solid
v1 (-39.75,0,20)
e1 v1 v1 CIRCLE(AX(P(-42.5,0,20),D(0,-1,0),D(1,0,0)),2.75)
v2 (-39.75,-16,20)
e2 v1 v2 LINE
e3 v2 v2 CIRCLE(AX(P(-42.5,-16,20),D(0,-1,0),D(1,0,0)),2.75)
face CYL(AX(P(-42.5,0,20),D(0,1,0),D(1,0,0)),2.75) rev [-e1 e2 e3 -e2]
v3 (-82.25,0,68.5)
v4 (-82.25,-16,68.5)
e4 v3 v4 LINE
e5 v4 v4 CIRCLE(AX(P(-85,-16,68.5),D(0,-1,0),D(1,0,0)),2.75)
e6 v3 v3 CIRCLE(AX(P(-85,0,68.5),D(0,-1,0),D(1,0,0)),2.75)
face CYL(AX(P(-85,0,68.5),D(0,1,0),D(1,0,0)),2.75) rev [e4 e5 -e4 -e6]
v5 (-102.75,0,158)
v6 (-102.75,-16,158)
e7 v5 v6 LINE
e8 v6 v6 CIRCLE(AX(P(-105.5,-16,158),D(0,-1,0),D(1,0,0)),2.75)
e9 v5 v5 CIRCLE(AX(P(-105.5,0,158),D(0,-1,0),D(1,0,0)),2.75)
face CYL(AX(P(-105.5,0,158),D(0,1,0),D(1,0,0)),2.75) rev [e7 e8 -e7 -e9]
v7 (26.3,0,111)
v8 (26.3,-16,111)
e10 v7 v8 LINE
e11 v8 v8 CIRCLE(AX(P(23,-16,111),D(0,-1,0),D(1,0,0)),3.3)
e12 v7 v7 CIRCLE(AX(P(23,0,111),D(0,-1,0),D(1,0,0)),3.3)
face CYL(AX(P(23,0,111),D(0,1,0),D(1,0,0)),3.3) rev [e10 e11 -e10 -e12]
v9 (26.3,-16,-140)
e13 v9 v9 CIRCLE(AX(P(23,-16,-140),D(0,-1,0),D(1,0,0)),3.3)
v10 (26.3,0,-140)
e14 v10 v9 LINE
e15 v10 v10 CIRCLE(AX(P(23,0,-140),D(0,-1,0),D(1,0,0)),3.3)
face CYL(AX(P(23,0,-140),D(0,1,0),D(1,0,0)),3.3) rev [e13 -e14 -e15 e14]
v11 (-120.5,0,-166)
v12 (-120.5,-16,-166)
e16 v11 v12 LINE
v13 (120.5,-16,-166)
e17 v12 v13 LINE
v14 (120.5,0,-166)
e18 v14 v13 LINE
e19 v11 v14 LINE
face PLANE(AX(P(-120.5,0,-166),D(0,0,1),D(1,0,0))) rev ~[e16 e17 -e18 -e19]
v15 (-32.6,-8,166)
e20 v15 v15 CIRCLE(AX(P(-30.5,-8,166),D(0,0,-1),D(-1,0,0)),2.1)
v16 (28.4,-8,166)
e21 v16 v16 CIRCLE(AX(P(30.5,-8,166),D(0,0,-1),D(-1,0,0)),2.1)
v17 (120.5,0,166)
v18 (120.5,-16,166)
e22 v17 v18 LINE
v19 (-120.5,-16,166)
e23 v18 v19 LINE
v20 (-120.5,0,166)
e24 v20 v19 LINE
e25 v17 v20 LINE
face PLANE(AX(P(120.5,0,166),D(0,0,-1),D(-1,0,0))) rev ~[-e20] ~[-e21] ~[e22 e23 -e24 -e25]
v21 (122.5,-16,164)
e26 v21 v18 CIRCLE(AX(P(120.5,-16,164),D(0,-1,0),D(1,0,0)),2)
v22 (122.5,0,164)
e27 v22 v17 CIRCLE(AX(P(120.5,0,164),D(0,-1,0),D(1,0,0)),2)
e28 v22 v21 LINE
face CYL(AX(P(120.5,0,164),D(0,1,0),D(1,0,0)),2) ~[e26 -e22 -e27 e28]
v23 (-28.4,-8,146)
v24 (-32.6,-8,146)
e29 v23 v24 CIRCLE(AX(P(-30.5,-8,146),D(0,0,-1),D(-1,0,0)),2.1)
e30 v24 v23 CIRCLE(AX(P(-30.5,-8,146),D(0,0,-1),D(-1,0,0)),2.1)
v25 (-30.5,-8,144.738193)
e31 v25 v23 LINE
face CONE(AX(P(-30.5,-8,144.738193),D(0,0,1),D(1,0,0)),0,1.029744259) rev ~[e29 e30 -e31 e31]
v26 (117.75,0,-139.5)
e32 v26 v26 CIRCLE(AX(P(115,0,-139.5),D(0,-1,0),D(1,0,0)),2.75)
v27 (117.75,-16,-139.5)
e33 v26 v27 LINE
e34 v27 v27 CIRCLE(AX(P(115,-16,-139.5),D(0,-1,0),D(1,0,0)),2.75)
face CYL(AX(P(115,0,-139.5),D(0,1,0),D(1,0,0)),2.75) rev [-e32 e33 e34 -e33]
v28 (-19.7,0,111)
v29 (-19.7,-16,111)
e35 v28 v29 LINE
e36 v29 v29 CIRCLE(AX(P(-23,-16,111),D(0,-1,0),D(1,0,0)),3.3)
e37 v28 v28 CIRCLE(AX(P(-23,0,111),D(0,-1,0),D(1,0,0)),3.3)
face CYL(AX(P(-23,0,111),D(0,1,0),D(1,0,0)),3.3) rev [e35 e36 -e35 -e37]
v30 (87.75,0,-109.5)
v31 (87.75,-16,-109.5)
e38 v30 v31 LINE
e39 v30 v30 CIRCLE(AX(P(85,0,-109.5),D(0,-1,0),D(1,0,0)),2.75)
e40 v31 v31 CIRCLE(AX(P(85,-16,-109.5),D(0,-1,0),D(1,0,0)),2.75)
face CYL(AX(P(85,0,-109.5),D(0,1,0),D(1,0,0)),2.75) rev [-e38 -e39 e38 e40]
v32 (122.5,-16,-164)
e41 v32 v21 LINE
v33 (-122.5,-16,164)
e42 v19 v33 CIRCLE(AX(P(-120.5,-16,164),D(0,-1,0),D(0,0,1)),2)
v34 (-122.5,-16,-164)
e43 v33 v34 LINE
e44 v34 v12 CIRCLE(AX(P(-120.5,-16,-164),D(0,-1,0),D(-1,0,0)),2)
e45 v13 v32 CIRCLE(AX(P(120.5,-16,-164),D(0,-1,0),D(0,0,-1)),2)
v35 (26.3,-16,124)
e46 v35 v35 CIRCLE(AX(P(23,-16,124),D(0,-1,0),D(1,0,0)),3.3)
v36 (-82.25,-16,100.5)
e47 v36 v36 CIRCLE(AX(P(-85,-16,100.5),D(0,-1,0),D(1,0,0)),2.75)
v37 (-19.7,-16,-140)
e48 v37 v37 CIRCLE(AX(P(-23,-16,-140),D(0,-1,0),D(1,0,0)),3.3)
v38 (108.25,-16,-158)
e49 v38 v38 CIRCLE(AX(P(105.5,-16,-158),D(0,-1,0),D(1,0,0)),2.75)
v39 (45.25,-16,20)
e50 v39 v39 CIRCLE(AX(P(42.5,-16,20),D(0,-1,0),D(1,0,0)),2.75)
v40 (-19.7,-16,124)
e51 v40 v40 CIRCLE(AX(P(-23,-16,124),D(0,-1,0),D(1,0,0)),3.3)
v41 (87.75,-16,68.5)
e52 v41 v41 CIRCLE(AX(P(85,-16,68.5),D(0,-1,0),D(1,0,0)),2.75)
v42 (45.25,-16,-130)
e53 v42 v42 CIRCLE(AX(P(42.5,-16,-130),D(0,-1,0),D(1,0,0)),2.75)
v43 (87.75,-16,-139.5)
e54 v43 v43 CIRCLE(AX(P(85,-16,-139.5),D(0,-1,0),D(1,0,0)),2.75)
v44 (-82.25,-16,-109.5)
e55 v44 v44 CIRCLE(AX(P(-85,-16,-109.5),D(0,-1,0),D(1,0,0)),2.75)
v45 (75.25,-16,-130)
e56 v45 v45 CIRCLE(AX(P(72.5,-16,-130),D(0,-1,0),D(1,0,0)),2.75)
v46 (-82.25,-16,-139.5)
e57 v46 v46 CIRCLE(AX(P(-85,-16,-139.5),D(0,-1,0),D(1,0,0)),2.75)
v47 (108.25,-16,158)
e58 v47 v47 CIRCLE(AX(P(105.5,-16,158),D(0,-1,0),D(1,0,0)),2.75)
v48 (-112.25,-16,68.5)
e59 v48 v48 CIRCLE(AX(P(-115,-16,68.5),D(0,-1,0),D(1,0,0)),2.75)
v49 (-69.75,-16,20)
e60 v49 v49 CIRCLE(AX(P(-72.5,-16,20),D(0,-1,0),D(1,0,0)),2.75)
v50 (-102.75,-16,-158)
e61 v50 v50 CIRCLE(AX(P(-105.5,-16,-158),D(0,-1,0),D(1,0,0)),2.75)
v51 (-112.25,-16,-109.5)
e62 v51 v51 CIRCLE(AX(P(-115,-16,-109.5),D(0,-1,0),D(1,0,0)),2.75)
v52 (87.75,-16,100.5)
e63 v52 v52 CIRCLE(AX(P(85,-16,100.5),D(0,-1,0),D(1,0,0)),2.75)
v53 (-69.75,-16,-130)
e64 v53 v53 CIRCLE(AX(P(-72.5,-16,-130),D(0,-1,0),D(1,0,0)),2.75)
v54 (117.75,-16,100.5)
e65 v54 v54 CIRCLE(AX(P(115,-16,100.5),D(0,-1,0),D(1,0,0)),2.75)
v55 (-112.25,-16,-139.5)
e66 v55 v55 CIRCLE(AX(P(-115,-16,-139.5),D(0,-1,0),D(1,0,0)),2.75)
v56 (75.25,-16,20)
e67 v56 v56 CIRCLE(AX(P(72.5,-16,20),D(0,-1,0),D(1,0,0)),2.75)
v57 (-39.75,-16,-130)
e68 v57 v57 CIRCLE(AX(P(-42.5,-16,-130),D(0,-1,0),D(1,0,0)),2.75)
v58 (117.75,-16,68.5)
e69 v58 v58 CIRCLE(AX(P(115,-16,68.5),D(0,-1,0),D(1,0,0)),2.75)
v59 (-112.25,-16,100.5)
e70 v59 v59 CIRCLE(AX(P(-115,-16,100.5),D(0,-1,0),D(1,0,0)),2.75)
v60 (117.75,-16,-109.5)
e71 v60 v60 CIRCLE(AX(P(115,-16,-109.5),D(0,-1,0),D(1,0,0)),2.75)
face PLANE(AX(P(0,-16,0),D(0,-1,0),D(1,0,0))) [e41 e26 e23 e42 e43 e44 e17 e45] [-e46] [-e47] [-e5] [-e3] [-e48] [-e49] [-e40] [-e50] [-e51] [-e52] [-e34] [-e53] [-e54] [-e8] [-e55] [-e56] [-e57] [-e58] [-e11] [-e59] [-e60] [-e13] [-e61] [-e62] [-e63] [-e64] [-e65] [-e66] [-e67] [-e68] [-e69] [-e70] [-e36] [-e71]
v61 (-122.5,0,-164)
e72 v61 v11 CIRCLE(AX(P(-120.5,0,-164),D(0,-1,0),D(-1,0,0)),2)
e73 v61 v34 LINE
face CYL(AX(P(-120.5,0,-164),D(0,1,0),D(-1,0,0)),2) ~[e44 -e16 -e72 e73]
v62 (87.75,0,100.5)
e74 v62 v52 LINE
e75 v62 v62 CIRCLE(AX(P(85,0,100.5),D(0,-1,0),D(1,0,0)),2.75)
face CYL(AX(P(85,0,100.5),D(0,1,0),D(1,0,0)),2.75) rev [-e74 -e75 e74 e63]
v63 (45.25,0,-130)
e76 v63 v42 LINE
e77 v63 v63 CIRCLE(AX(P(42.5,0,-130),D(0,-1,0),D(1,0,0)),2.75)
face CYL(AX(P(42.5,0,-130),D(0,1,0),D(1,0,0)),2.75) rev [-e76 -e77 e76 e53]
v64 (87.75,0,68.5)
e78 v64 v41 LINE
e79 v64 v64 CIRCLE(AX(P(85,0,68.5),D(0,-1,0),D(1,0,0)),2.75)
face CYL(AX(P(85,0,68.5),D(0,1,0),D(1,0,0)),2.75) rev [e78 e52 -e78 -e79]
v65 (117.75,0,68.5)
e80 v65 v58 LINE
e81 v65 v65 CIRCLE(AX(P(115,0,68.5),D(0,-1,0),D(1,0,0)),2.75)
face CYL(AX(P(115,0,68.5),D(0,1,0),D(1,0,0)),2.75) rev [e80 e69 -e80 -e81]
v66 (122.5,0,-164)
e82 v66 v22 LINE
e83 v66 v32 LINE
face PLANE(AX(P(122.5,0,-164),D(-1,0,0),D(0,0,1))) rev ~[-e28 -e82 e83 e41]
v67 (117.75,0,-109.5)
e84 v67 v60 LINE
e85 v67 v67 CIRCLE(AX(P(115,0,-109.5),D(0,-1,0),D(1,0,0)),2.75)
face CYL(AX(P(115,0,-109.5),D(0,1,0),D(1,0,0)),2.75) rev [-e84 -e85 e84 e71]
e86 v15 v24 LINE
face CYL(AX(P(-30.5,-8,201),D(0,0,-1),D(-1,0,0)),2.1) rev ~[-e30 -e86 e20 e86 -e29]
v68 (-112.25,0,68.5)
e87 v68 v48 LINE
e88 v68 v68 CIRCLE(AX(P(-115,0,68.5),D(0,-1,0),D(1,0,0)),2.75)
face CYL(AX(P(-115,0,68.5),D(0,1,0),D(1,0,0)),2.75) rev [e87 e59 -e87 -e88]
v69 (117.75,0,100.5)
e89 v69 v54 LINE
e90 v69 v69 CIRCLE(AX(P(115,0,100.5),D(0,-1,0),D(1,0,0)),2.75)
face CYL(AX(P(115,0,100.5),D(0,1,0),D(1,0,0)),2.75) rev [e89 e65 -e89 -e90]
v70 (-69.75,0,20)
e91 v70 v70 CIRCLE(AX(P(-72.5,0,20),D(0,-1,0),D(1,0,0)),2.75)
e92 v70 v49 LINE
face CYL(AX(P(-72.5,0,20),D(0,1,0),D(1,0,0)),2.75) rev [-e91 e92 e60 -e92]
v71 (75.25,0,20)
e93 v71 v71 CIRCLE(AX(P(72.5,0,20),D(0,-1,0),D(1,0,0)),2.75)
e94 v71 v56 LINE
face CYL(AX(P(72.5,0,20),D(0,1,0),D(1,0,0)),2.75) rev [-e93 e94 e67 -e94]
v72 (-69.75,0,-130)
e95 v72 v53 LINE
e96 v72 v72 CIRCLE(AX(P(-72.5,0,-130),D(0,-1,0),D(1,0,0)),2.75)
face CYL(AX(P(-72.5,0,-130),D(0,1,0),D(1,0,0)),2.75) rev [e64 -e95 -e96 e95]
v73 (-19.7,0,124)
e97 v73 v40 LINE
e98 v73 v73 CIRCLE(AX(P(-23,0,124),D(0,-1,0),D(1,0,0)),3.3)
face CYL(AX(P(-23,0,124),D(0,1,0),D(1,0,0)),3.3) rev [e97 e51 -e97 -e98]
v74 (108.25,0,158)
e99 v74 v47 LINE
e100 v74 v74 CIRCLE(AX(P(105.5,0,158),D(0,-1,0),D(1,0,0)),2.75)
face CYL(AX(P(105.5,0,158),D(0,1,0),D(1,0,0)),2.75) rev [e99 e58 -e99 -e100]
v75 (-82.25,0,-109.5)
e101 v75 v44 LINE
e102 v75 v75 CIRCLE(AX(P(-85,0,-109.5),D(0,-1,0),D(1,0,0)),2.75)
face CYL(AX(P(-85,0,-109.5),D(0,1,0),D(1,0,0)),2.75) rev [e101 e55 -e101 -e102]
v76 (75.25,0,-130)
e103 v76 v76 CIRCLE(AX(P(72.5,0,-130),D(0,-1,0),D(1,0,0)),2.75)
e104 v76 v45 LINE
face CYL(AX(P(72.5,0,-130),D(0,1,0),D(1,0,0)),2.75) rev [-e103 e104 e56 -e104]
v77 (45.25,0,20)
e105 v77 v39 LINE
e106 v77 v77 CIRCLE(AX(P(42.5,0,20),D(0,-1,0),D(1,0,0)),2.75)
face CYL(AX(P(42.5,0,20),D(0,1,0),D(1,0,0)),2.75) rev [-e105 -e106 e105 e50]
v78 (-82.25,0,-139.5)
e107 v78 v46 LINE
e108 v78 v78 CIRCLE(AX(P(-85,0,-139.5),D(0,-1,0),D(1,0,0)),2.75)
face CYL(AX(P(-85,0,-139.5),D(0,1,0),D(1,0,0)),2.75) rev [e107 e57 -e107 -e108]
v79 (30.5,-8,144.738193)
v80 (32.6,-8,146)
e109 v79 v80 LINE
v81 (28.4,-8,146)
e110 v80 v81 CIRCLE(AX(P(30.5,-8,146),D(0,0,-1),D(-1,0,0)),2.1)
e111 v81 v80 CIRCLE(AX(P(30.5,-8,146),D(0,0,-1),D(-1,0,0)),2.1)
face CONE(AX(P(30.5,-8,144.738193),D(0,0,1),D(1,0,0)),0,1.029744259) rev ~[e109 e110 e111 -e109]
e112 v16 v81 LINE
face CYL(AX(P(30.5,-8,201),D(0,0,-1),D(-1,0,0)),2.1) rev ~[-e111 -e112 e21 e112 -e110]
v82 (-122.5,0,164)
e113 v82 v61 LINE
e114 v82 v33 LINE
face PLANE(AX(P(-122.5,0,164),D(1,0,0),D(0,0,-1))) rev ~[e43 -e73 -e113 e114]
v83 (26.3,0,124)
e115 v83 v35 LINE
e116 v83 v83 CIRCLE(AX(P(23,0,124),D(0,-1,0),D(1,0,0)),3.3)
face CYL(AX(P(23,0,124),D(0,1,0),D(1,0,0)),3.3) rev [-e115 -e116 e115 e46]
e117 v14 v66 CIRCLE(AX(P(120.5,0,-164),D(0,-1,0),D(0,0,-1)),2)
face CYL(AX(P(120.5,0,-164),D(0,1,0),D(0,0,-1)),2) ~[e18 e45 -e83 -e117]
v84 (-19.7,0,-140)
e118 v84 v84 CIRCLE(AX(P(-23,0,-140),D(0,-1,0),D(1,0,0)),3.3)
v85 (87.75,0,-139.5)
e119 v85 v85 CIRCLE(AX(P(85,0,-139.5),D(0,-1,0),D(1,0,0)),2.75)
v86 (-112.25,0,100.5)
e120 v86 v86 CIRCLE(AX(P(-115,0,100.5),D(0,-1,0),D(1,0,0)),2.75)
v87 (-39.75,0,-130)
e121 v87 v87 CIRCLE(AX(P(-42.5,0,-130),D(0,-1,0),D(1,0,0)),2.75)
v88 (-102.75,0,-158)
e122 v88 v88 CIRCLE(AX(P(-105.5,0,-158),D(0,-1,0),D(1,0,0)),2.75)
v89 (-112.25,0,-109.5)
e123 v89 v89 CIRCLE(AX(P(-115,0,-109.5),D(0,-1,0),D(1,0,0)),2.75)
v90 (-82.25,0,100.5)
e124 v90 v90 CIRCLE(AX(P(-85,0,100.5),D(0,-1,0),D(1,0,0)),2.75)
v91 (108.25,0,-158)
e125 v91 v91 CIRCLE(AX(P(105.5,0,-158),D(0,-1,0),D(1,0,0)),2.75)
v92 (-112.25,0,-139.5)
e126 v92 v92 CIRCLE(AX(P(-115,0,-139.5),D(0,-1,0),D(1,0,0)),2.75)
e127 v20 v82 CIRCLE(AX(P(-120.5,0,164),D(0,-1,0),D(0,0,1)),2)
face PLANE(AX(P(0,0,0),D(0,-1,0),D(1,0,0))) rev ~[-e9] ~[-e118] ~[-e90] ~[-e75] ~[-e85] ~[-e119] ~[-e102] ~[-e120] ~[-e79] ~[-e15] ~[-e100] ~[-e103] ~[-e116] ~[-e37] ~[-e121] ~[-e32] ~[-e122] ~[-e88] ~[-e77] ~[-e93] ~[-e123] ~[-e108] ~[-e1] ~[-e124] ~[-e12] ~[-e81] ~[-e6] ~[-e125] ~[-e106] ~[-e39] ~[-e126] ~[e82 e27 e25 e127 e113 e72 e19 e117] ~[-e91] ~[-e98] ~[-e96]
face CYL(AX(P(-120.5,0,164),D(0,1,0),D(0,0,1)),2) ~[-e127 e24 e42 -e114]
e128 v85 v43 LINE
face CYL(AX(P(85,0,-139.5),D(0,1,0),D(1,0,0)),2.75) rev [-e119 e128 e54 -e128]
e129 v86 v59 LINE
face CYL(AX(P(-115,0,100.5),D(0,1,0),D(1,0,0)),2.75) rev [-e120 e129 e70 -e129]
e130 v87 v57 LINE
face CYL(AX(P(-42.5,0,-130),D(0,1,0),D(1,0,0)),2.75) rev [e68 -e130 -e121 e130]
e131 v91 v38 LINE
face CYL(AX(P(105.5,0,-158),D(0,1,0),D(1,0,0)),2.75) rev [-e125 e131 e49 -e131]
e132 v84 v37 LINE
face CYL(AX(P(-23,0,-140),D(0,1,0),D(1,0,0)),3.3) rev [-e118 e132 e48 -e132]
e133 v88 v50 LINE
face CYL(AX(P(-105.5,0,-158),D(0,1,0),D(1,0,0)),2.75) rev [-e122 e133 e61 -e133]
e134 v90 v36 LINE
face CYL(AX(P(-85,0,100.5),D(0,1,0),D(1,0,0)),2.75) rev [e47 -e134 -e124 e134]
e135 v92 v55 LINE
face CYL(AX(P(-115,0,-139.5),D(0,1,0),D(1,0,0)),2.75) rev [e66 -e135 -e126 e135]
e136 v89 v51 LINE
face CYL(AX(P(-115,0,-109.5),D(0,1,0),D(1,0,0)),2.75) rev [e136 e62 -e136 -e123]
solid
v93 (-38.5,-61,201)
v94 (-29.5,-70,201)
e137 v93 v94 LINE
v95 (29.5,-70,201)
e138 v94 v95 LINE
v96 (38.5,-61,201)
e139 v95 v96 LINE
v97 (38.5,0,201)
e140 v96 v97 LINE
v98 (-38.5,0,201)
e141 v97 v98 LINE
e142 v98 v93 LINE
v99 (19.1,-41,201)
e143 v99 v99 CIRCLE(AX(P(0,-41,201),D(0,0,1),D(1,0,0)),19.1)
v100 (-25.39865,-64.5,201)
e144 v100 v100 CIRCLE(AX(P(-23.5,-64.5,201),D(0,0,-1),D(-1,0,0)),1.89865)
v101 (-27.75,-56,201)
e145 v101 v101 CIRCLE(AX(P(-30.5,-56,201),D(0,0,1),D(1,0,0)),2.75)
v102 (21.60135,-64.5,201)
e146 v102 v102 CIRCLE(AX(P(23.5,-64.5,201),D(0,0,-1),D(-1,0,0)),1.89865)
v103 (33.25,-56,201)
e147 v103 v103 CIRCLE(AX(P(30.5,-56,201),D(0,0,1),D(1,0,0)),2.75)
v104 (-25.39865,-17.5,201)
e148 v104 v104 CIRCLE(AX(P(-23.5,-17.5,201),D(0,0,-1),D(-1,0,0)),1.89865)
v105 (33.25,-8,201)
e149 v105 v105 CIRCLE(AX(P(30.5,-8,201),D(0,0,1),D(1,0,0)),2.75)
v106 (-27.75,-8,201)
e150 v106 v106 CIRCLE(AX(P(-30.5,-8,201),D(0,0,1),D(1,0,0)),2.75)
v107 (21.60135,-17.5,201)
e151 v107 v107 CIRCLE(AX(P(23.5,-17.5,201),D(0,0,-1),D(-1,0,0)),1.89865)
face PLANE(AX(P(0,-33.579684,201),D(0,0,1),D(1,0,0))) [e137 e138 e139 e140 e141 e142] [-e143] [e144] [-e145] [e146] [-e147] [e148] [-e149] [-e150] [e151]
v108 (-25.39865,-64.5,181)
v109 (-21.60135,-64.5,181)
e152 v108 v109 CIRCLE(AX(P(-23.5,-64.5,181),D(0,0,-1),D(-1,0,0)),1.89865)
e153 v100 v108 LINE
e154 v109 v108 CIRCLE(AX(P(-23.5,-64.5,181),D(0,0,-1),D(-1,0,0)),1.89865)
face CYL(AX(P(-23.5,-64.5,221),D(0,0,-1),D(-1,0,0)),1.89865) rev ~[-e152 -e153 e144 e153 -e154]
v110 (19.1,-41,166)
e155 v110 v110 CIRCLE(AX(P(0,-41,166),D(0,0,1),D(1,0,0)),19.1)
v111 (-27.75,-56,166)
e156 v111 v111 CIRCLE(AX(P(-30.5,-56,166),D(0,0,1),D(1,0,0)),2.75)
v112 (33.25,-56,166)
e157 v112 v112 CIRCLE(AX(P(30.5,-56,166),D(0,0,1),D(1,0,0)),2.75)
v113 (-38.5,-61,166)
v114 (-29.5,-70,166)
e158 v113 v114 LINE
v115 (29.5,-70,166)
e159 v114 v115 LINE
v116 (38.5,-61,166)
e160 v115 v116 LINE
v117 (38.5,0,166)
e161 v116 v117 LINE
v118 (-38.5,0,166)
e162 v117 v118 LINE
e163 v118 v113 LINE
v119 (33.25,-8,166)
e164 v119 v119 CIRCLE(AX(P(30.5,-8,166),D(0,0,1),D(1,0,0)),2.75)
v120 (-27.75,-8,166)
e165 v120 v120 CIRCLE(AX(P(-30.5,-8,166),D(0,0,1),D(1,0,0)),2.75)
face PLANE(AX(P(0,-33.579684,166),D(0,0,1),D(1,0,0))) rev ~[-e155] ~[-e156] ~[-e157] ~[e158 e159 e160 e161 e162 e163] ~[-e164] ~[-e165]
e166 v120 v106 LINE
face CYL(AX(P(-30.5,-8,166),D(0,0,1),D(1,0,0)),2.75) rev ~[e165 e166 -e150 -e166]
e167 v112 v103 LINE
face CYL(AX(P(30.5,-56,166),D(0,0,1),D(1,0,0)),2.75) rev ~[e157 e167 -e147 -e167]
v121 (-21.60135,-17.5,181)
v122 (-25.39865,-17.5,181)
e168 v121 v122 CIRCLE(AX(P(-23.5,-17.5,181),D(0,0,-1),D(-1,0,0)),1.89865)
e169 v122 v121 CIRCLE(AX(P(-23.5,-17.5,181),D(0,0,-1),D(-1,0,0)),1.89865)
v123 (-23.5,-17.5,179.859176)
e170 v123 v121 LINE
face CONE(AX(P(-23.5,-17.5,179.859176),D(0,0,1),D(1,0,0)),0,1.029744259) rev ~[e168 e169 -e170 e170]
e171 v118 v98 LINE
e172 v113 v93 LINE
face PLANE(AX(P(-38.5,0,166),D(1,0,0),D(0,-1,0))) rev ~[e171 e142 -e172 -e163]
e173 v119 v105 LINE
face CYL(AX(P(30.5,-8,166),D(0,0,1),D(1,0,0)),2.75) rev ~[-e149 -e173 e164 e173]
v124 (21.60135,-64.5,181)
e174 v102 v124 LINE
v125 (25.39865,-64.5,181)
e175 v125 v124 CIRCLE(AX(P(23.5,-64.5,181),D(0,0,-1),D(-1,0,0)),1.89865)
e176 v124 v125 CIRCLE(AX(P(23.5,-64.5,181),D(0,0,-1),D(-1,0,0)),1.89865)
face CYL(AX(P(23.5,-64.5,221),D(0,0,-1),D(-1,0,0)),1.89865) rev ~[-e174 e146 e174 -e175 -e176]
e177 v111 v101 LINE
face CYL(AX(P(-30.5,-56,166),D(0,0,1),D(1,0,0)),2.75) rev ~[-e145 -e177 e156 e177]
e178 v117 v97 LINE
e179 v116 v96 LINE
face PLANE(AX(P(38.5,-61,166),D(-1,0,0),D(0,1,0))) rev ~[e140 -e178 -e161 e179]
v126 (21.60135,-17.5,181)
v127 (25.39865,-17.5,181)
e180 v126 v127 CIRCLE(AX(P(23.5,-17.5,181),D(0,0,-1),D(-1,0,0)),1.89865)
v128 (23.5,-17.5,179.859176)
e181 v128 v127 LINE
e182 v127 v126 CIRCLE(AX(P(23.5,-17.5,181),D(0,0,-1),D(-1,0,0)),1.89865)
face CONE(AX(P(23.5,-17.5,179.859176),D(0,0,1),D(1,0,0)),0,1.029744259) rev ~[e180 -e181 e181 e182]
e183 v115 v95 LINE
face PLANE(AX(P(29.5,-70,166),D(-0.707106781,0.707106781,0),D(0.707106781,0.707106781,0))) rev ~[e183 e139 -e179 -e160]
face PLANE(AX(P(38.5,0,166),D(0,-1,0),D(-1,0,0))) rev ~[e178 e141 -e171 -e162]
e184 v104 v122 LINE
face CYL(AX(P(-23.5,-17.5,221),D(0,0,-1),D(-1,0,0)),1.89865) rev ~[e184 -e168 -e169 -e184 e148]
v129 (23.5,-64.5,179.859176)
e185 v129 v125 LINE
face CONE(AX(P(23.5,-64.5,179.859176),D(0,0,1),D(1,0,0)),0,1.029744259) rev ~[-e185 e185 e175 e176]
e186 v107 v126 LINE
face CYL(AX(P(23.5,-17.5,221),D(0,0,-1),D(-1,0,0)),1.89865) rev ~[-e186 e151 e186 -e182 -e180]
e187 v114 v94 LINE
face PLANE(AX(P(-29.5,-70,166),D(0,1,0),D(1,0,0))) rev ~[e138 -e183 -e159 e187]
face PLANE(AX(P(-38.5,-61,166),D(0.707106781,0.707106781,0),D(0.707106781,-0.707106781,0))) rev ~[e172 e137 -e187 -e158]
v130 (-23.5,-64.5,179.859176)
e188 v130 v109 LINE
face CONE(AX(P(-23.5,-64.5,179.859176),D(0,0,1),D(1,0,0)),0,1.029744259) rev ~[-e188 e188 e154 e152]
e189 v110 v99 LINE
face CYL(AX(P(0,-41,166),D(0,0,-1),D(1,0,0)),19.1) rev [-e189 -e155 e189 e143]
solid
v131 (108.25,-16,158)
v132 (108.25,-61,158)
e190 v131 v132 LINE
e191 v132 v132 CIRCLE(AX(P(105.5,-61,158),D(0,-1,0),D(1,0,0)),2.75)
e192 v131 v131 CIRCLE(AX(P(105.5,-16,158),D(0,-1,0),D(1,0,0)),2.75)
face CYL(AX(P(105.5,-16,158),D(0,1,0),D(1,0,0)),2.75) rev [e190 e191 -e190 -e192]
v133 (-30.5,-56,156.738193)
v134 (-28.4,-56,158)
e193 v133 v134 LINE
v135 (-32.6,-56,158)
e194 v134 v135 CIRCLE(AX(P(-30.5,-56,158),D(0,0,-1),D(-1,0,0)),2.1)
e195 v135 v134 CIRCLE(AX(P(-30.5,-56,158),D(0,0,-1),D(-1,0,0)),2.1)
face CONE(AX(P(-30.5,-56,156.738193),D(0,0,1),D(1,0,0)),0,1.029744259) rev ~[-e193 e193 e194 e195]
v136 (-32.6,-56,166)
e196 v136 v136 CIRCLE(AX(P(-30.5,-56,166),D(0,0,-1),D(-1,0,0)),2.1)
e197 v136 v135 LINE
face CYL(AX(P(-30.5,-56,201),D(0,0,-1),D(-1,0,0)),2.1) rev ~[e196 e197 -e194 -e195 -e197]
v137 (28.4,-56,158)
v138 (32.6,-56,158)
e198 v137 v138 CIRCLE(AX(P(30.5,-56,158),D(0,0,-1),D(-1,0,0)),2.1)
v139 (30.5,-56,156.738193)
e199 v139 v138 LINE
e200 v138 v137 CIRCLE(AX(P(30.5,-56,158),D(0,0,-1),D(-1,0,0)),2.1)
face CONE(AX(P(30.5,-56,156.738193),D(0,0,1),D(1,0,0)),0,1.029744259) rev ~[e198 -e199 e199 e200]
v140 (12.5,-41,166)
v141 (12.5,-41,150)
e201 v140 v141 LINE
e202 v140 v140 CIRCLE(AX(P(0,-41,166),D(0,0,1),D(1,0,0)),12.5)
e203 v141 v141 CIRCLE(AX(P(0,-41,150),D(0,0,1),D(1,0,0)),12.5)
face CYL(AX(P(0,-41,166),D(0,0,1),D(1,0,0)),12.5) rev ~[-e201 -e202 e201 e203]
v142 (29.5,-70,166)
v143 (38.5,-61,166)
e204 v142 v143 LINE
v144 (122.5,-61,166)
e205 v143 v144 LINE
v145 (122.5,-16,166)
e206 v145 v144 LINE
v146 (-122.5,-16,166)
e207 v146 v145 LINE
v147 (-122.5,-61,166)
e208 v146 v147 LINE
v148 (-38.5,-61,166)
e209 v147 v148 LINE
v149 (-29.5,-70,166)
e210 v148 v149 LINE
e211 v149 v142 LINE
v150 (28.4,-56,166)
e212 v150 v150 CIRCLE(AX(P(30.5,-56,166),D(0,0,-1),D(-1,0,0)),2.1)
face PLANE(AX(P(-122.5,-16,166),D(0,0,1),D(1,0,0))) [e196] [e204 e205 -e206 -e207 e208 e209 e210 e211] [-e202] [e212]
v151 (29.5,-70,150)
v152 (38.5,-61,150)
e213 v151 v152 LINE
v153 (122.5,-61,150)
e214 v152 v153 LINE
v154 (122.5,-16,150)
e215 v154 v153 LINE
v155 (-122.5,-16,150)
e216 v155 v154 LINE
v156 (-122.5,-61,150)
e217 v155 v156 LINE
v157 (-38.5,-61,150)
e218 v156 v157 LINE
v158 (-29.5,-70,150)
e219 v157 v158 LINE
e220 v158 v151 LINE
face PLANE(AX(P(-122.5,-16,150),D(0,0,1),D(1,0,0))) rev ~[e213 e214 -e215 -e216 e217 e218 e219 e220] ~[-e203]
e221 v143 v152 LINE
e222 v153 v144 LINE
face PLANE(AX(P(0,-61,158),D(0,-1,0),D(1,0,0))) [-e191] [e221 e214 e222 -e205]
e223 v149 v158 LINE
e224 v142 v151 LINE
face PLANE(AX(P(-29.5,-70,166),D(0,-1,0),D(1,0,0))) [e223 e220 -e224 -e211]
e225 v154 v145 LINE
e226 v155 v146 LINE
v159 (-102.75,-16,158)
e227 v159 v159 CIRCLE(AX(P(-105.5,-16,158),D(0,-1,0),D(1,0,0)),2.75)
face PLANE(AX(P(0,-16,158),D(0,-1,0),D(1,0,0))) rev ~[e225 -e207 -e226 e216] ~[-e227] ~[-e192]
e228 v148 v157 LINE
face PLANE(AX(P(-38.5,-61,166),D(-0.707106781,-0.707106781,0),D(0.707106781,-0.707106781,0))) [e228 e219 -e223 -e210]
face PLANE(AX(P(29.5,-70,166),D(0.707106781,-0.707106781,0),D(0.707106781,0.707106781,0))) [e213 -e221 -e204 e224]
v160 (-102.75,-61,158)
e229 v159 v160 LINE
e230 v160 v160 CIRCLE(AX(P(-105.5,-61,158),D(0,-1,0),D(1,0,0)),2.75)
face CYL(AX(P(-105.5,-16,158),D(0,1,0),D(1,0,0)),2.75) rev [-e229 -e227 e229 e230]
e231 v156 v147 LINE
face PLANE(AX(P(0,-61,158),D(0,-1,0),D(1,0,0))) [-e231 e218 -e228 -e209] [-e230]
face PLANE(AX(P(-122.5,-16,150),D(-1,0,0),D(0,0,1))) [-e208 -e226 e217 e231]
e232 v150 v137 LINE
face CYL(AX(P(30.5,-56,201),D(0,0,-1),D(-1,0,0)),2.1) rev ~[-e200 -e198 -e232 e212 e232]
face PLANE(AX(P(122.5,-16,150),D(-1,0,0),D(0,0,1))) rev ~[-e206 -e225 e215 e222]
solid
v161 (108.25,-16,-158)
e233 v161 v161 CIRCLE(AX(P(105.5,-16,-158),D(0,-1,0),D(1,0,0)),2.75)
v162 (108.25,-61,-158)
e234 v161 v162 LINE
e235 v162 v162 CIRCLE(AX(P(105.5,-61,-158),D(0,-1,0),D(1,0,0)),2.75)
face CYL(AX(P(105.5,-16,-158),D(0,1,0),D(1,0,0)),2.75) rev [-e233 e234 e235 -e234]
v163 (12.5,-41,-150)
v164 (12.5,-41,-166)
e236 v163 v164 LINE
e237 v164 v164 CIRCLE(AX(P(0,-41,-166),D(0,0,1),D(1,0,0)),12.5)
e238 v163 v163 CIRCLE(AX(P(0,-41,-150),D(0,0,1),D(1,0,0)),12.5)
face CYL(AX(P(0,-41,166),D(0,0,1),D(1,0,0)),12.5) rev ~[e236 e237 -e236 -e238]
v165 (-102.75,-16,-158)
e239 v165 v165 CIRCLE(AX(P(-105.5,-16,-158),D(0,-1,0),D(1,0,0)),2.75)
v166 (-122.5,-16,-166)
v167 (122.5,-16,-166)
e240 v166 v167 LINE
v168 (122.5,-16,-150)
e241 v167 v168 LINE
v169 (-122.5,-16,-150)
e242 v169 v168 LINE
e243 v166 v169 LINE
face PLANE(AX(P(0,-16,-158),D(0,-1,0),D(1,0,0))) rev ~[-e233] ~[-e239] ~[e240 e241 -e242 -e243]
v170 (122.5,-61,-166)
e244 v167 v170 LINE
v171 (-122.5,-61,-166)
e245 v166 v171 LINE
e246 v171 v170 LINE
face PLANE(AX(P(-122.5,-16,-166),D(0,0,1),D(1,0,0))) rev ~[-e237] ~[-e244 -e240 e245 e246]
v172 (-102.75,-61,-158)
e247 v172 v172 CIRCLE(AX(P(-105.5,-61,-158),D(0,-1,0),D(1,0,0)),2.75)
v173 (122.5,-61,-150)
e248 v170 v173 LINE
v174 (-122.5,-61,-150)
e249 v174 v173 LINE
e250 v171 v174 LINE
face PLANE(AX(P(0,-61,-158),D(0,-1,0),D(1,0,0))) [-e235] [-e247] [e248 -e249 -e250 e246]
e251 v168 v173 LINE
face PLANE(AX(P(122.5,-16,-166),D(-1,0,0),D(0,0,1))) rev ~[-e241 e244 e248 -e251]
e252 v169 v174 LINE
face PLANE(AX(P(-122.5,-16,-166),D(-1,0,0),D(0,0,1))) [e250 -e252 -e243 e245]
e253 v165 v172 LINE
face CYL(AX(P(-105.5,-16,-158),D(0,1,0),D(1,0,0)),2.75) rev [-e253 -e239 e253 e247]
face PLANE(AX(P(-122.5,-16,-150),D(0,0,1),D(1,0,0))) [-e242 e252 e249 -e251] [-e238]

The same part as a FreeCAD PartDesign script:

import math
import FreeCAD as App
import Part
import Sketcher

V = App.Vector
Q = App.Units.Quantity


def add_polygon(sketch, points):
    """Adds a closed chain of lines whose ends are joined by coincident constraints."""
    first, n = sketch.GeometryCount, len(points)
    for a, b in zip(points, points[1:] + points[:1]):
        sketch.addGeometry(Part.LineSegment(App.Vector(*a, 0), App.Vector(*b, 0)), False)
    for i in range(n):
        sketch.addConstraint(Sketcher.Constraint("Coincident", first + i, 2, first + (i + 1) % n, 1))

doc = App.newDocument("Part")
body = doc.addObject("PartDesign::Body", "Body")

sketch1 = body.newObject("Sketcher::SketchObject", "Sketch")
sketch1.AttachmentSupport = (doc.getObject("XZ_Plane"), [""])
sketch1.MapMode = "FlatFace"
sketch1.addGeometry(Part.ArcOfCircle(Part.Circle(V(120.5, 164, 0), V(0, 0, 1), 2), math.radians(0), math.radians(90)), False)
sketch1.addGeometry(Part.LineSegment(V(120.5, 166, 0), V(-120.5, 166, 0)), False)
sketch1.addGeometry(Part.ArcOfCircle(Part.Circle(V(-120.5, 164, 0), V(0, 0, 1), 2), math.radians(90), math.radians(180)), False)
sketch1.addGeometry(Part.LineSegment(V(-122.5, 164, 0), V(-122.5, -164, 0)), False)
sketch1.addGeometry(Part.ArcOfCircle(Part.Circle(V(-120.5, -164, 0), V(0, 0, 1), 2), math.radians(180), math.radians(270)), False)
sketch1.addGeometry(Part.LineSegment(V(-120.5, -166, 0), V(120.5, -166, 0)), False)
sketch1.addGeometry(Part.ArcOfCircle(Part.Circle(V(120.5, -164, 0), V(0, 0, 1), 2), math.radians(-90), math.radians(0)), False)
sketch1.addGeometry(Part.LineSegment(V(122.5, -164, 0), V(122.5, 164, 0)), False)
sketch1.addGeometry(Part.Circle(V(-105.5, -158, 0), V(0, 0, 1), 2.8), False)
sketch1.addGeometry(Part.Circle(V(-115, -139.5, 0), V(0, 0, 1), 2.8), False)
sketch1.addGeometry(Part.Circle(V(-85, -139.5, 0), V(0, 0, 1), 2.8), False)
sketch1.addGeometry(Part.Circle(V(-72.5, -130, 0), V(0, 0, 1), 2.8), False)
sketch1.addGeometry(Part.Circle(V(-115, -109.5, 0), V(0, 0, 1), 2.8), False)
sketch1.addGeometry(Part.Circle(V(-85, -109.5, 0), V(0, 0, 1), 2.8), False)
sketch1.addGeometry(Part.Circle(V(-42.5, -130, 0), V(0, 0, 1), 2.8), False)
sketch1.addGeometry(Part.Circle(V(-23, -140, 0), V(0, 0, 1), 3.3), False)
sketch1.addGeometry(Part.Circle(V(23, -140, 0), V(0, 0, 1), 3.3), False)
sketch1.addGeometry(Part.Circle(V(42.5, -130, 0), V(0, 0, 1), 2.8), False)
sketch1.addGeometry(Part.Circle(V(72.5, -130, 0), V(0, 0, 1), 2.8), False)
sketch1.addGeometry(Part.Circle(V(85, -139.5, 0), V(0, 0, 1), 2.8), False)
sketch1.addGeometry(Part.Circle(V(105.5, -158, 0), V(0, 0, 1), 2.8), False)
sketch1.addGeometry(Part.Circle(V(115, -139.5, 0), V(0, 0, 1), 2.8), False)
sketch1.addGeometry(Part.Circle(V(85, -109.5, 0), V(0, 0, 1), 2.8), False)
sketch1.addGeometry(Part.Circle(V(115, -109.5, 0), V(0, 0, 1), 2.8), False)
sketch1.addGeometry(Part.Circle(V(-72.5, 20, 0), V(0, 0, 1), 2.8), False)
sketch1.addGeometry(Part.Circle(V(-115, 68.5, 0), V(0, 0, 1), 2.8), False)
sketch1.addGeometry(Part.Circle(V(-85, 68.5, 0), V(0, 0, 1), 2.8), False)
sketch1.addGeometry(Part.Circle(V(-42.5, 20, 0), V(0, 0, 1), 2.8), False)
sketch1.addGeometry(Part.Circle(V(-115, 100.5, 0), V(0, 0, 1), 2.8), False)
sketch1.addGeometry(Part.Circle(V(-85, 100.5, 0), V(0, 0, 1), 2.8), False)
sketch1.addGeometry(Part.Circle(V(-105.5, 158, 0), V(0, 0, 1), 2.8), False)
sketch1.addGeometry(Part.Circle(V(-23, 111, 0), V(0, 0, 1), 3.3), False)
sketch1.addGeometry(Part.Circle(V(-23, 124, 0), V(0, 0, 1), 3.3), False)
sketch1.addGeometry(Part.Circle(V(42.5, 20, 0), V(0, 0, 1), 2.8), False)
sketch1.addGeometry(Part.Circle(V(72.5, 20, 0), V(0, 0, 1), 2.8), False)
sketch1.addGeometry(Part.Circle(V(85, 68.5, 0), V(0, 0, 1), 2.8), False)
sketch1.addGeometry(Part.Circle(V(115, 68.5, 0), V(0, 0, 1), 2.8), False)
sketch1.addGeometry(Part.Circle(V(23, 111, 0), V(0, 0, 1), 3.3), False)
sketch1.addGeometry(Part.Circle(V(23, 124, 0), V(0, 0, 1), 3.3), False)
sketch1.addGeometry(Part.Circle(V(85, 100.5, 0), V(0, 0, 1), 2.8), False)
sketch1.addGeometry(Part.Circle(V(115, 100.5, 0), V(0, 0, 1), 2.8), False)
sketch1.addGeometry(Part.Circle(V(105.5, 158, 0), V(0, 0, 1), 2.8), False)
sketch1.addConstraint(Sketcher.Constraint("Tangent", 0, 2, 1, 1))
sketch1.addConstraint(Sketcher.Constraint("Tangent", 1, 2, 2, 1))
sketch1.addConstraint(Sketcher.Constraint("Tangent", 2, 2, 3, 1))
sketch1.addConstraint(Sketcher.Constraint("Tangent", 3, 2, 4, 1))
sketch1.addConstraint(Sketcher.Constraint("Tangent", 4, 2, 5, 1))
sketch1.addConstraint(Sketcher.Constraint("Tangent", 5, 2, 6, 1))
sketch1.addConstraint(Sketcher.Constraint("Tangent", 6, 2, 7, 1))
sketch1.addConstraint(Sketcher.Constraint("Tangent", 7, 2, 0, 1))
sketch1.addConstraint(Sketcher.Constraint("Horizontal", 1))
sketch1.addConstraint(Sketcher.Constraint("Vertical", 3))
sketch1.addConstraint(Sketcher.Constraint("Horizontal", 5))
sketch1.addConstraint(Sketcher.Constraint("Vertical", 7))
sketch1.addConstraint(Sketcher.Constraint("Equal", 0, 2))
sketch1.addConstraint(Sketcher.Constraint("Equal", 2, 4))
sketch1.addConstraint(Sketcher.Constraint("Equal", 4, 6))
sketch1.addConstraint(Sketcher.Constraint("Equal", 8, 9))
sketch1.addConstraint(Sketcher.Constraint("Equal", 9, 10))
sketch1.addConstraint(Sketcher.Constraint("Equal", 10, 11))
sketch1.addConstraint(Sketcher.Constraint("Equal", 11, 12))
sketch1.addConstraint(Sketcher.Constraint("Equal", 12, 13))
sketch1.addConstraint(Sketcher.Constraint("Equal", 13, 14))
sketch1.addConstraint(Sketcher.Constraint("Equal", 15, 16))
sketch1.addConstraint(Sketcher.Constraint("Equal", 14, 17))
sketch1.addConstraint(Sketcher.Constraint("Equal", 17, 18))
sketch1.addConstraint(Sketcher.Constraint("Equal", 18, 19))
sketch1.addConstraint(Sketcher.Constraint("Equal", 19, 20))
sketch1.addConstraint(Sketcher.Constraint("Equal", 20, 21))
sketch1.addConstraint(Sketcher.Constraint("Equal", 21, 22))
sketch1.addConstraint(Sketcher.Constraint("Equal", 22, 23))
sketch1.addConstraint(Sketcher.Constraint("Equal", 23, 24))
sketch1.addConstraint(Sketcher.Constraint("Equal", 24, 25))
sketch1.addConstraint(Sketcher.Constraint("Equal", 25, 26))
sketch1.addConstraint(Sketcher.Constraint("Equal", 26, 27))
sketch1.addConstraint(Sketcher.Constraint("Equal", 27, 28))
sketch1.addConstraint(Sketcher.Constraint("Equal", 28, 29))
sketch1.addConstraint(Sketcher.Constraint("Equal", 29, 30))
sketch1.addConstraint(Sketcher.Constraint("Equal", 16, 31))
sketch1.addConstraint(Sketcher.Constraint("Equal", 31, 32))
sketch1.addConstraint(Sketcher.Constraint("Equal", 30, 33))
sketch1.addConstraint(Sketcher.Constraint("Equal", 33, 34))
sketch1.addConstraint(Sketcher.Constraint("Equal", 34, 35))
sketch1.addConstraint(Sketcher.Constraint("Equal", 35, 36))
sketch1.addConstraint(Sketcher.Constraint("Equal", 32, 37))
sketch1.addConstraint(Sketcher.Constraint("Equal", 37, 38))
sketch1.addConstraint(Sketcher.Constraint("Equal", 36, 39))
sketch1.addConstraint(Sketcher.Constraint("Equal", 39, 40))
sketch1.addConstraint(Sketcher.Constraint("Equal", 40, 41))
sketch1.addConstraint(Sketcher.Constraint("Symmetric", 0, 3, 4, 3, -1, 1))
sketch1.addConstraint(Sketcher.Constraint("Symmetric", 20, 3, 30, 3, -1, 1))
sketch1.addConstraint(Sketcher.Constraint("Symmetric", 8, 3, 41, 3, -1, 1))
sketch1.addConstraint(Sketcher.Constraint("Symmetric", 15, 3, 16, 3, -2))
sketch1.addConstraint(Sketcher.Constraint("Symmetric", 14, 3, 17, 3, -2))
sketch1.addConstraint(Sketcher.Constraint("Symmetric", 11, 3, 18, 3, -2))
sketch1.addConstraint(Sketcher.Constraint("Symmetric", 10, 3, 19, 3, -2))
sketch1.addConstraint(Sketcher.Constraint("Symmetric", 8, 3, 20, 3, -2))
sketch1.addConstraint(Sketcher.Constraint("Symmetric", 9, 3, 21, 3, -2))
sketch1.addConstraint(Sketcher.Constraint("Symmetric", 13, 3, 22, 3, -2))
sketch1.addConstraint(Sketcher.Constraint("Symmetric", 12, 3, 23, 3, -2))
sketch1.addConstraint(Sketcher.Constraint("Symmetric", 27, 3, 33, 3, -2))
sketch1.addConstraint(Sketcher.Constraint("Symmetric", 24, 3, 34, 3, -2))
sketch1.addConstraint(Sketcher.Constraint("Symmetric", 26, 3, 35, 3, -2))
sketch1.addConstraint(Sketcher.Constraint("Symmetric", 25, 3, 36, 3, -2))
sketch1.addConstraint(Sketcher.Constraint("Symmetric", 31, 3, 37, 3, -2))
sketch1.addConstraint(Sketcher.Constraint("Symmetric", 32, 3, 38, 3, -2))
sketch1.addConstraint(Sketcher.Constraint("Symmetric", 29, 3, 39, 3, -2))
sketch1.addConstraint(Sketcher.Constraint("Symmetric", 28, 3, 40, 3, -2))
sketch1.addConstraint(Sketcher.Constraint("Horizontal", 9, 3, 10, 3))
sketch1.addConstraint(Sketcher.Constraint("Horizontal", 12, 3, 13, 3))
sketch1.addConstraint(Sketcher.Constraint("Horizontal", 11, 3, 14, 3))
sketch1.addConstraint(Sketcher.Constraint("Horizontal", 25, 3, 26, 3))
sketch1.addConstraint(Sketcher.Constraint("Horizontal", 24, 3, 27, 3))
sketch1.addConstraint(Sketcher.Constraint("Horizontal", 28, 3, 29, 3))
sketch1.addConstraint(Sketcher.Constraint("Vertical", 9, 3, 12, 3))
sketch1.addConstraint(Sketcher.Constraint("Vertical", 10, 3, 13, 3))
sketch1.addConstraint(Sketcher.Constraint("Vertical", 11, 3, 24, 3))
sketch1.addConstraint(Sketcher.Constraint("Vertical", 12, 3, 25, 3))
sketch1.addConstraint(Sketcher.Constraint("Vertical", 13, 3, 26, 3))
sketch1.addConstraint(Sketcher.Constraint("Vertical", 14, 3, 27, 3))
sketch1.addConstraint(Sketcher.Constraint("Vertical", 25, 3, 28, 3))
sketch1.addConstraint(Sketcher.Constraint("Vertical", 26, 3, 29, 3))
sketch1.addConstraint(Sketcher.Constraint("Vertical", 15, 3, 31, 3))
sketch1.addConstraint(Sketcher.Constraint("Vertical", 31, 3, 32, 3))
sketch1.addConstraint(Sketcher.Constraint("Radius", 0, Q("2 mm")))
sketch1.addConstraint(Sketcher.Constraint("Diameter", 8, Q("5.5 mm")))
sketch1.addConstraint(Sketcher.Constraint("Diameter", 15, Q("6.6 mm")))
sketch1.addConstraint(Sketcher.Constraint("DistanceX", 1, 2, 1, 1, Q("241 mm")))
sketch1.addConstraint(Sketcher.Constraint("DistanceY", 3, 2, 3, 1, Q("328 mm")))
sketch1.addConstraint(Sketcher.Constraint("DistanceY", 8, 3, -1, 1, Q("158 mm")))
sketch1.addConstraint(Sketcher.Constraint("DistanceX", 9, 3, -1, 1, Q("115 mm")))
sketch1.addConstraint(Sketcher.Constraint("DistanceX", 10, 3, -1, 1, Q("85 mm")))
sketch1.addConstraint(Sketcher.Constraint("DistanceY", 11, 3, -1, 1, Q("130 mm")))
sketch1.addConstraint(Sketcher.Constraint("DistanceX", 15, 3, -1, 1, Q("23 mm")))
sketch1.addConstraint(Sketcher.Constraint("DistanceY", 15, 3, -1, 1, Q("140 mm")))
sketch1.addConstraint(Sketcher.Constraint("DistanceY", -1, 1, 24, 3, Q("20 mm")))
sketch1.addConstraint(Sketcher.Constraint("DistanceY", -1, 1, 31, 3, Q("111 mm")))
sketch1.addConstraint(Sketcher.Constraint("DistanceY", -1, 1, 32, 3, Q("124 mm")))
sketch1.addConstraint(Sketcher.Constraint("DistanceX", 4, 3, 8, 3, Q("15 mm")))
sketch1.addConstraint(Sketcher.Constraint("DistanceX", 8, 3, 11, 3, Q("33 mm")))
sketch1.addConstraint(Sketcher.Constraint("DistanceY", 9, 3, 12, 3, Q("30 mm")))
sketch1.addConstraint(Sketcher.Constraint("DistanceX", 11, 3, 14, 3, Q("30 mm")))
sketch1.addConstraint(Sketcher.Constraint("DistanceY", 12, 3, 25, 3, Q("178 mm")))
sketch1.addConstraint(Sketcher.Constraint("DistanceY", 25, 3, 28, 3, Q("32 mm")))
sketch1.addConstraint(Sketcher.Constraint("DistanceY", 9, 3, -1, 1, Q("139.5 mm")))
pad1 = body.newObject("PartDesign::Pad", "Pad")
pad1.Profile = sketch1
pad1.Length = 16

sketch2 = body.newObject("Sketcher::SketchObject", "Sketch001")
sketch2.AttachmentSupport = (doc.getObject("XY_Plane"), [""])
sketch2.MapMode = "FlatFace"
sketch2.AttachmentOffset = App.Placement(V(0, 0, 201), App.Rotation())
sketch2.addGeometry(Part.Circle(V(-30.5, -8, 0), V(0, 0, 1), 2.1), False)
sketch2.addGeometry(Part.Circle(V(30.5, -8, 0), V(0, 0, 1), 2.1), False)
sketch2.addConstraint(Sketcher.Constraint("Equal", 0, 1))
sketch2.addConstraint(Sketcher.Constraint("Symmetric", 0, 3, 1, 3, -2))
sketch2.addConstraint(Sketcher.Constraint("Diameter", 0, Q("4.2 mm")))
sketch2.addConstraint(Sketcher.Constraint("DistanceY", 0, 3, -1, 1, Q("8 mm")))
sketch2.addConstraint(Sketcher.Constraint("DistanceX", 0, 3, 1, 3, Q("61 mm")))
doc.recompute()
hole = body.newObject("PartDesign::Hole", "Hole")
hole.Profile = sketch2
hole.ThreadType = "None"
hole.Diameter = 4.2
hole.DepthType = "Dimension"
hole.Depth = 55
hole.DrillPoint = "Angled"
hole.DrillPointAngle = 118
hole.HoleCutType = "Counterbore"
hole.HoleCutDiameter = 5.5
hole.HoleCutDepth = 35
body2 = doc.addObject("PartDesign::Body", "Body001")

sketch3 = body2.newObject("Sketcher::SketchObject", "Sketch002")
sketch3.AttachmentSupport = (doc.getObject("XZ_Plane001"), [""])
sketch3.MapMode = "FlatFace"
sketch3.AttachmentOffset = App.Placement(V(0, 0, 16), App.Rotation())
add_polygon(sketch3, [(-122.5, 166), (-122.5, 150), (122.5, 150), (122.5, 166)])
sketch3.addGeometry(Part.Circle(V(-105.5, 158, 0), V(0, 0, 1), 2.8), False)
sketch3.addGeometry(Part.Circle(V(105.5, 158, 0), V(0, 0, 1), 2.8), False)
sketch3.addConstraint(Sketcher.Constraint("Vertical", 0))
sketch3.addConstraint(Sketcher.Constraint("Horizontal", 1))
sketch3.addConstraint(Sketcher.Constraint("Vertical", 2))
sketch3.addConstraint(Sketcher.Constraint("Horizontal", 3))
sketch3.addConstraint(Sketcher.Constraint("Equal", 4, 5))
sketch3.addConstraint(Sketcher.Constraint("Symmetric", 4, 3, 5, 3, -2))
sketch3.addConstraint(Sketcher.Constraint("Diameter", 4, Q("5.5 mm")))
sketch3.addConstraint(Sketcher.Constraint("DistanceX", 1, 1, 1, 2, Q("245 mm")))
sketch3.addConstraint(Sketcher.Constraint("DistanceY", 0, 2, 0, 1, Q("16 mm")))
sketch3.addConstraint(Sketcher.Constraint("DistanceY", -1, 1, 4, 3, Q("158 mm")))
sketch3.addConstraint(Sketcher.Constraint("DistanceY", -1, 1, 0, 2, Q("150 mm")))
sketch3.addConstraint(Sketcher.Constraint("DistanceX", 4, 3, 5, 3, Q("211 mm")))
sketch3.addConstraint(Sketcher.Constraint("DistanceX", 0, 2, 4, 3, Q("17 mm")))
pad2 = body2.newObject("PartDesign::Pad", "Pad001")
pad2.Profile = sketch3
pad2.Length = 45
body3 = doc.addObject("PartDesign::Body", "Body002")

sketch4 = body3.newObject("Sketcher::SketchObject", "Sketch003")
sketch4.AttachmentSupport = (doc.getObject("XZ_Plane002"), [""])
sketch4.MapMode = "FlatFace"
sketch4.AttachmentOffset = App.Placement(V(0, 0, 16), App.Rotation())
add_polygon(sketch4, [(-122.5, -150), (-122.5, -166), (122.5, -166), (122.5, -150)])
sketch4.addGeometry(Part.Circle(V(-105.5, -158, 0), V(0, 0, 1), 2.8), False)
sketch4.addGeometry(Part.Circle(V(105.5, -158, 0), V(0, 0, 1), 2.8), False)
sketch4.addConstraint(Sketcher.Constraint("Vertical", 0))
sketch4.addConstraint(Sketcher.Constraint("Horizontal", 1))
sketch4.addConstraint(Sketcher.Constraint("Vertical", 2))
sketch4.addConstraint(Sketcher.Constraint("Horizontal", 3))
sketch4.addConstraint(Sketcher.Constraint("Equal", 4, 5))
sketch4.addConstraint(Sketcher.Constraint("Symmetric", 4, 3, 5, 3, -2))
sketch4.addConstraint(Sketcher.Constraint("Diameter", 4, Q("5.5 mm")))
sketch4.addConstraint(Sketcher.Constraint("DistanceX", 1, 1, 1, 2, Q("245 mm")))
sketch4.addConstraint(Sketcher.Constraint("DistanceY", 0, 2, 0, 1, Q("16 mm")))
sketch4.addConstraint(Sketcher.Constraint("DistanceY", 4, 3, -1, 1, Q("158 mm")))
sketch4.addConstraint(Sketcher.Constraint("DistanceY", 0, 2, -1, 1, Q("166 mm")))
sketch4.addConstraint(Sketcher.Constraint("DistanceX", 4, 3, 5, 3, Q("211 mm")))
sketch4.addConstraint(Sketcher.Constraint("DistanceX", 0, 2, 4, 3, Q("17 mm")))
pad3 = body3.newObject("PartDesign::Pad", "Pad002")
pad3.Profile = sketch4
pad3.Length = 45
body4 = doc.addObject("PartDesign::Body", "Body003")

sketch5 = body4.newObject("Sketcher::SketchObject", "Sketch004")
sketch5.AttachmentSupport = (doc.getObject("XY_Plane003"), [""])
sketch5.MapMode = "FlatFace"
sketch5.AttachmentOffset = App.Placement(V(0, 0, 166), App.Rotation())
sketch5.addGeometry(Part.Circle(V(0, -41, 0), V(0, 0, 1), 12), False)
sketch5.addConstraint(Sketcher.Constraint("PointOnObject", 0, 3, -2))
sketch5.addConstraint(Sketcher.Constraint("Diameter", 0, Q("25 mm")))
sketch5.addConstraint(Sketcher.Constraint("DistanceY", 0, 3, -1, 1, Q("41 mm")))
pad4 = body4.newObject("PartDesign::Pad", "Pad003")
pad4.Profile = sketch5
pad4.Length = 332.001
pad4.Reversed = True
doc.recompute()

body5 = doc.addObject("PartDesign::Body", "Body004")
body5.BaseFeature = body4
boolean = body2.newObject("PartDesign::Boolean", "Boolean")
boolean.Type = "Cut"
boolean.addObjects([body5])
doc.recompute()

sketch6 = body2.newObject("Sketcher::SketchObject", "Sketch005")
sketch6.AttachmentSupport = (doc.getObject("XY_Plane001"), [""])
sketch6.MapMode = "FlatFace"
sketch6.AttachmentOffset = App.Placement(V(0, 0, 166), App.Rotation())
add_polygon(sketch6, [(38, -61), (-38, -61), (-30, -70), (30, -70)])
sketch6.addConstraint(Sketcher.Constraint("Horizontal", 0))
sketch6.addConstraint(Sketcher.Constraint("Horizontal", 2))
sketch6.addConstraint(Sketcher.Constraint("Perpendicular", 1, 3))
sketch6.addConstraint(Sketcher.Constraint("Equal", 1, 3))
sketch6.addConstraint(Sketcher.Constraint("DistanceX", 0, 2, 0, 1, Q("77 mm")))
sketch6.addConstraint(Sketcher.Constraint("DistanceX", 2, 1, 2, 2, Q("59 mm")))
sketch6.addConstraint(Sketcher.Constraint("DistanceY", 0, 2, -1, 1, Q("61 mm")))
sketch6.addConstraint(Sketcher.Constraint("DistanceX", 0, 2, -1, 1, Q("38.5 mm")))
pad5 = body2.newObject("PartDesign::Pad", "Pad004")
pad5.Profile = sketch6
pad5.Length = 16
pad5.Reversed = True

sketch7 = body2.newObject("Sketcher::SketchObject", "Sketch006")
sketch7.AttachmentSupport = (doc.getObject("XY_Plane001"), [""])
sketch7.MapMode = "FlatFace"
sketch7.AttachmentOffset = App.Placement(V(0, 0, 201), App.Rotation())
sketch7.addGeometry(Part.Circle(V(-30.5, -56, 0), V(0, 0, 1), 2.1), False)
sketch7.addGeometry(Part.Circle(V(30.5, -56, 0), V(0, 0, 1), 2.1), False)
sketch7.addConstraint(Sketcher.Constraint("Equal", 0, 1))
sketch7.addConstraint(Sketcher.Constraint("Symmetric", 0, 3, 1, 3, -2))
sketch7.addConstraint(Sketcher.Constraint("Diameter", 0, Q("4.2 mm")))
sketch7.addConstraint(Sketcher.Constraint("DistanceY", 0, 3, -1, 1, Q("56 mm")))
sketch7.addConstraint(Sketcher.Constraint("DistanceX", 0, 3, 1, 3, Q("61 mm")))
doc.recompute()
hole2 = body2.newObject("PartDesign::Hole", "Hole001")
hole2.Profile = sketch7
hole2.ThreadType = "None"
hole2.Diameter = 4.2
hole2.DepthType = "Dimension"
hole2.Depth = 43
hole2.DrillPoint = "Angled"
hole2.DrillPointAngle = 118
hole2.HoleCutType = "Counterbore"
hole2.HoleCutDiameter = 5.5
hole2.HoleCutDepth = 35
doc.recompute()

boolean2 = body3.newObject("PartDesign::Boolean", "Boolean001")
boolean2.Type = "Cut"
boolean2.addObjects([body4])
body6 = doc.addObject("PartDesign::Body", "Body005")

sketch8 = body6.newObject("Sketcher::SketchObject", "Sketch007")
sketch8.AttachmentSupport = (doc.getObject("XY_Plane005"), [""])
sketch8.MapMode = "FlatFace"
sketch8.AttachmentOffset = App.Placement(V(0, 0, 166), App.Rotation())
add_polygon(sketch8, [(-38, -61), (-30, -70), (30, -70), (38, -61), (38, 0), (-38, 0)])
sketch8.addGeometry(Part.Circle(V(0, -41, 0), V(0, 0, 1), 19), False)
sketch8.addConstraint(Sketcher.Constraint("Horizontal", 1))
sketch8.addConstraint(Sketcher.Constraint("Vertical", 3))
sketch8.addConstraint(Sketcher.Constraint("Horizontal", 4))
sketch8.addConstraint(Sketcher.Constraint("Vertical", 5))
sketch8.addConstraint(Sketcher.Constraint("Symmetric", 3, 2, 4, 2, -1, 1))
sketch8.addConstraint(Sketcher.Constraint("PointOnObject", 6, 3, -2))
sketch8.addConstraint(Sketcher.Constraint("Perpendicular", 0, 2))
sketch8.addConstraint(Sketcher.Constraint("Horizontal", 2, 2, 5, 2))
sketch8.addConstraint(Sketcher.Constraint("Equal", 0, 2))
sketch8.addConstraint(Sketcher.Constraint("Diameter", 6, Q("38.2 mm")))
sketch8.addConstraint(Sketcher.Constraint("DistanceX", 1, 1, 1, 2, Q("59 mm")))
sketch8.addConstraint(Sketcher.Constraint("DistanceX", 4, 2, 4, 1, Q("77 mm")))
sketch8.addConstraint(Sketcher.Constraint("DistanceY", 3, 1, 3, 2, Q("61 mm")))
sketch8.addConstraint(Sketcher.Constraint("DistanceY", 6, 3, -1, 1, Q("41 mm")))
pad6 = body6.newObject("PartDesign::Pad", "Pad005")
pad6.Profile = sketch8
pad6.Length = 35

sketch9 = body6.newObject("Sketcher::SketchObject", "Sketch008")
sketch9.AttachmentSupport = (doc.getObject("XY_Plane005"), [""])
sketch9.MapMode = "FlatFace"
sketch9.AttachmentOffset = App.Placement(V(0, 0, 201), App.Rotation())
sketch9.addGeometry(Part.Circle(V(-23.5, -17.5, 0), V(0, 0, 1), 1.9), False)
sketch9.addGeometry(Part.Circle(V(-23.5, -64.5, 0), V(0, 0, 1), 1.9), False)
sketch9.addGeometry(Part.Circle(V(23.5, -64.5, 0), V(0, 0, 1), 1.9), False)
sketch9.addGeometry(Part.Circle(V(23.5, -17.5, 0), V(0, 0, 1), 1.9), False)
sketch9.addConstraint(Sketcher.Constraint("Equal", 0, 1))
sketch9.addConstraint(Sketcher.Constraint("Equal", 1, 2))
sketch9.addConstraint(Sketcher.Constraint("Equal", 2, 3))
sketch9.addConstraint(Sketcher.Constraint("Symmetric", 1, 3, 2, 3, -2))
sketch9.addConstraint(Sketcher.Constraint("Symmetric", 0, 3, 3, 3, -2))
sketch9.addConstraint(Sketcher.Constraint("Vertical", 0, 3, 1, 3))
sketch9.addConstraint(Sketcher.Constraint("DistanceY", 1, 3, 0, 3, Q("47 mm")))
sketch9.addConstraint(Sketcher.Constraint("DistanceX", 1, 3, 2, 3, Q("47 mm")))
sketch9.addConstraint(Sketcher.Constraint("Diameter", 0, Q("3.7973 mm")))
sketch9.addConstraint(Sketcher.Constraint("DistanceY", 0, 3, -1, 1, Q("17.5 mm")))
doc.recompute()
hole3 = body6.newObject("PartDesign::Hole", "Hole002")
hole3.Profile = sketch9
hole3.ThreadType = "None"
hole3.Diameter = 3.7973
hole3.DepthType = "Dimension"
hole3.Depth = 20
hole3.DrillPoint = "Angled"
hole3.DrillPointAngle = 118

sketch10 = body6.newObject("Sketcher::SketchObject", "Sketch009")
sketch10.AttachmentSupport = (doc.getObject("XY_Plane005"), [""])
sketch10.MapMode = "FlatFace"
sketch10.AttachmentOffset = App.Placement(V(0, 0, 201), App.Rotation())
sketch10.addGeometry(Part.Circle(V(-30.5, -8, 0), V(0, 0, 1), 2.1), False)
sketch10.addGeometry(Part.Circle(V(30.5, -8, 0), V(0, 0, 1), 2.1), False)
sketch10.addConstraint(Sketcher.Constraint("Equal", 0, 1))
sketch10.addConstraint(Sketcher.Constraint("Symmetric", 0, 3, 1, 3, -2))
sketch10.addConstraint(Sketcher.Constraint("Diameter", 0, Q("4.2 mm")))
sketch10.addConstraint(Sketcher.Constraint("DistanceY", 0, 3, -1, 1, Q("8 mm")))
sketch10.addConstraint(Sketcher.Constraint("DistanceX", 0, 3, 1, 3, Q("61 mm")))
doc.recompute()
hole4 = body6.newObject("PartDesign::Hole", "Hole003")
hole4.Profile = sketch10
hole4.ThreadType = "None"
hole4.Diameter = 4.2
hole4.DepthType = "Dimension"
hole4.Depth = 55
hole4.DrillPoint = "Angled"
hole4.DrillPointAngle = 118
hole4.HoleCutType = "Counterbore"
hole4.HoleCutDiameter = 5.5
hole4.HoleCutDepth = 35

sketch11 = body6.newObject("Sketcher::SketchObject", "Sketch010")
sketch11.AttachmentSupport = (doc.getObject("XY_Plane005"), [""])
sketch11.MapMode = "FlatFace"
sketch11.AttachmentOffset = App.Placement(V(0, 0, 201), App.Rotation())
sketch11.addGeometry(Part.Circle(V(-30.5, -56, 0), V(0, 0, 1), 2.1), False)
sketch11.addGeometry(Part.Circle(V(30.5, -56, 0), V(0, 0, 1), 2.1), False)
sketch11.addConstraint(Sketcher.Constraint("Equal", 0, 1))
sketch11.addConstraint(Sketcher.Constraint("Symmetric", 0, 3, 1, 3, -2))
sketch11.addConstraint(Sketcher.Constraint("Diameter", 0, Q("4.2 mm")))
sketch11.addConstraint(Sketcher.Constraint("DistanceY", 0, 3, -1, 1, Q("56 mm")))
sketch11.addConstraint(Sketcher.Constraint("DistanceX", 0, 3, 1, 3, Q("61 mm")))
doc.recompute()
hole5 = body6.newObject("PartDesign::Hole", "Hole004")
hole5.Profile = sketch11
hole5.ThreadType = "None"
hole5.Diameter = 4.2
hole5.DepthType = "Dimension"
hole5.Depth = 43
hole5.DrillPoint = "Angled"
hole5.DrillPointAngle = 118
hole5.HoleCutType = "Counterbore"
hole5.HoleCutDiameter = 5.5
hole5.HoleCutDepth = 35

doc.recompute()
